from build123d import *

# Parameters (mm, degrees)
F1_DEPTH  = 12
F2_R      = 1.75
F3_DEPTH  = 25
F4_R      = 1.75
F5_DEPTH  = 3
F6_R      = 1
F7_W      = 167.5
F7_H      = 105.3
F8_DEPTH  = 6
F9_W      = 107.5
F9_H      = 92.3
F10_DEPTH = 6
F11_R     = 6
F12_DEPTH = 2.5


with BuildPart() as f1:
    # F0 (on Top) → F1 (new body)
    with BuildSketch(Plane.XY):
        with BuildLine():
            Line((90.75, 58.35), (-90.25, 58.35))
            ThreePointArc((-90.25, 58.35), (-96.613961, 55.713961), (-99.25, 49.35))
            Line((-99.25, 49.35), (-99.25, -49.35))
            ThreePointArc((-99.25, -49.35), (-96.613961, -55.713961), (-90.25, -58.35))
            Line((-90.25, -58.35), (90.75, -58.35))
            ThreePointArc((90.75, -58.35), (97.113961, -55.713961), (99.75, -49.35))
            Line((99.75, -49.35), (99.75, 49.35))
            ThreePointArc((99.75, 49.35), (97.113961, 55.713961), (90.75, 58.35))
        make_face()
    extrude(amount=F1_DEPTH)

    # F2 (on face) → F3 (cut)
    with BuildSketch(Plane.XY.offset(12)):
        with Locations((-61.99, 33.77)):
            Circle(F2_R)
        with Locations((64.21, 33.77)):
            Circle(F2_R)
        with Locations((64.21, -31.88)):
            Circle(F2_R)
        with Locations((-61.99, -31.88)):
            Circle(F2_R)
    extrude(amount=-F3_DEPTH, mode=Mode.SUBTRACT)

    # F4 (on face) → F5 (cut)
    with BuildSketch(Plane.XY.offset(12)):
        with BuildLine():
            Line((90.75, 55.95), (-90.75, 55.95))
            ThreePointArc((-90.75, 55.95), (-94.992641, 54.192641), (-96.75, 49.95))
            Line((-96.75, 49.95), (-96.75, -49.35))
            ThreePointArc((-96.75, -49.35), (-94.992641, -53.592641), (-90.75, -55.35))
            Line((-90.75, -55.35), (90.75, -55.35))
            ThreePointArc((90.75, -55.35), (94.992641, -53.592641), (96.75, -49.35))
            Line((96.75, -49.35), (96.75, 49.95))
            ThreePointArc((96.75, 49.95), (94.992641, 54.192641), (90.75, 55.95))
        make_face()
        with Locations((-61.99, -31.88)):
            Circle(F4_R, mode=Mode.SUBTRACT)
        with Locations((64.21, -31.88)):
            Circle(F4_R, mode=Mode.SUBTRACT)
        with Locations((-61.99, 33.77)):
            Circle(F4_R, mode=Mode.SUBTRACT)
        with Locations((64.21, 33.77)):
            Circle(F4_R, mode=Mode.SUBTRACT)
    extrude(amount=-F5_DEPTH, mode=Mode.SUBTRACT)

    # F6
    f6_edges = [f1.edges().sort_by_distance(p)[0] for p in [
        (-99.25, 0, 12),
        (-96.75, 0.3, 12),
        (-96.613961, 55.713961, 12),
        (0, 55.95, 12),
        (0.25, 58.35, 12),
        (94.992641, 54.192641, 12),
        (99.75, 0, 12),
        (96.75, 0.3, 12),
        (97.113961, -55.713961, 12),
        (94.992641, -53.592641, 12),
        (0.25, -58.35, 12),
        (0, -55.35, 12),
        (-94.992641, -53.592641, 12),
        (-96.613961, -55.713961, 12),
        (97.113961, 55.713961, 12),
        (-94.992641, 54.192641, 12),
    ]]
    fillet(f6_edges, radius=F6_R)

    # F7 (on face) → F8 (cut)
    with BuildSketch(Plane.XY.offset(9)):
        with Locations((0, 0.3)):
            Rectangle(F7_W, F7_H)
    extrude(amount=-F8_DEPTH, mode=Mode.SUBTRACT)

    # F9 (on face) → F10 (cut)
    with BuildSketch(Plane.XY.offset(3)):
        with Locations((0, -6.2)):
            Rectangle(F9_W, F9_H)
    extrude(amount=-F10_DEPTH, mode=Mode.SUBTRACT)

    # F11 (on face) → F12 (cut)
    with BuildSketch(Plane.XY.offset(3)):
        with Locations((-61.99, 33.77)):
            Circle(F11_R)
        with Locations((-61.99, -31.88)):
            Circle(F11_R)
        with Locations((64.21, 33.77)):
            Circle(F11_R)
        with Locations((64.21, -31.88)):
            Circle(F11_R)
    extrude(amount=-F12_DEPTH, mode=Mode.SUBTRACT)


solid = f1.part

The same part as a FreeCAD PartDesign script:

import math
import FreeCAD as App
import Part
import Sketcher
from FreeCAD import Vector
Q = App.Units.Quantity


def edges_at(feature, points):
    """Names of the edges that pass closest to the given points."""
    edges = feature.Shape.Edges
    near = lambda p: min(range(len(edges)), key=lambda i: edges[i].distToShape(Part.Vertex(*p))[0])
    return sorted({f"Edge{near(p) + 1}" for p in points})


def add_polygon(sketch, points):
    """Adds a closed chain of lines whose ends are joined by coincident constraints."""
    first, n = sketch.GeometryCount, len(points)
    for a, b in zip(points, points[1:] + points[:1]):
        sketch.addGeometry(Part.LineSegment(App.Vector(*a, 0), App.Vector(*b, 0)), False)
    for i in range(n):
        sketch.addConstraint(Sketcher.Constraint("Coincident", first + i, 2, first + (i + 1) % n, 1))

doc = App.newDocument("Part")
body = doc.addObject("PartDesign::Body", "Body")

# Sketch on XY plane
sketch1 = doc.addObject("Sketcher::SketchObject", "Sketch")
body.addObject(sketch1)
sketch1.AttachmentSupport = (doc.XY_Plane, [""])
sketch1.MapMode = "FlatFace"
sketch1.addGeometry([
    Part.LineSegment(Vector(90.75, 58.35, 0), Vector(-90.25, 58.35, 0)),  # 0
    Part.ArcOfCircle(Part.Circle(Vector(-90.25, 49.35, 0), Vector(0, 0, 1), 9), math.radians(90.000001), math.radians(179.999999)),  # 1
    Part.LineSegment(Vector(-99.25, 49.35, 0), Vector(-99.25, -49.35, 0)),  # 2
    Part.ArcOfCircle(Part.Circle(Vector(-90.25, -49.35, 0), Vector(0, 0, 1), 9), math.radians(-179.999999), math.radians(-90.000001)),  # 3
    Part.LineSegment(Vector(-90.25, -58.35, 0), Vector(90.75, -58.35, 0)),  # 4
    Part.ArcOfCircle(Part.Circle(Vector(90.75, -49.35, 0), Vector(0, 0, 1), 9), math.radians(-89.999999), math.radians(-0.000001)),  # 5
    Part.LineSegment(Vector(99.75, -49.35, 0), Vector(99.75, 49.35, 0)),  # 6
    Part.ArcOfCircle(Part.Circle(Vector(90.75, 49.35, 0), Vector(0, 0, 1), 9), math.radians(0.000001), math.radians(89.999999)),  # 7
], False)
sketch1.addConstraint([
    Sketcher.Constraint("Tangent", 0, 2, 1, 1),
    Sketcher.Constraint("Tangent", 1, 2, 2, 1),
    Sketcher.Constraint("Tangent", 2, 2, 3, 1),
    Sketcher.Constraint("Tangent", 3, 2, 4, 1),
    Sketcher.Constraint("Tangent", 4, 2, 5, 1),
    Sketcher.Constraint("Tangent", 5, 2, 6, 1),
    Sketcher.Constraint("Tangent", 6, 2, 7, 1),
    Sketcher.Constraint("Tangent", 7, 2, 0, 1),
    Sketcher.Constraint("Horizontal", 0),
    Sketcher.Constraint("Vertical", 2),
    Sketcher.Constraint("Horizontal", 4),
    Sketcher.Constraint("Vertical", 6),
    Sketcher.Constraint("Equal", 1, 3),
    Sketcher.Constraint("Equal", 3, 5),
    Sketcher.Constraint("Equal", 5, 7),
    Sketcher.Constraint("Radius", 1, Q("9 mm")),
    Sketcher.Constraint("DistanceX", 0, 2, 0, 1, Q("181 mm")),
    Sketcher.Constraint("DistanceY", 2, 2, 2, 1, Q("98.7 mm")),
    Sketcher.Constraint("DistanceX", 1, 3, -1, 1, Q("90.25 mm")),
    Sketcher.Constraint("DistanceY", -1, 1, 1, 3, Q("49.35 mm")),
])
pad1 = doc.addObject("PartDesign::Pad", "Pad")
body.addObject(pad1)
pad1.Profile = sketch1
pad1.Length = 12

# Sketch on XY plane
sketch2 = doc.addObject("Sketcher::SketchObject", "Sketch001")
body.addObject(sketch2)
sketch2.AttachmentSupport = (doc.XY_Plane, [""])
sketch2.MapMode = "FlatFace"
sketch2.AttachmentOffset = App.Placement(Vector(0, 0, 12), App.Rotation())
sketch2.addGeometry([
    Part.Circle(Vector(-61.99, 33.77, 0), Vector(0, 0, 1), 1.75),
    Part.Circle(Vector(64.21, 33.77, 0), Vector(0, 0, 1), 1.75),
    Part.Circle(Vector(64.21, -31.88, 0), Vector(0, 0, 1), 1.75),
    Part.Circle(Vector(-61.99, -31.88, 0), Vector(0, 0, 1), 1.75),
], False)
sketch2.addConstraint([
    Sketcher.Constraint("Equal", 0, 1),
    Sketcher.Constraint("Equal", 1, 2),
    Sketcher.Constraint("Equal", 2, 3),
    Sketcher.Constraint("Horizontal", 0, 3, 1, 3),
    Sketcher.Constraint("Horizontal", 2, 3, 3, 3),
    Sketcher.Constraint("Vertical", 1, 3, 2, 3),
    Sketcher.Constraint("Vertical", 0, 3, 3, 3),
    Sketcher.Constraint("Diameter", 0, Q("3.5 mm")),
    Sketcher.Constraint("DistanceX", 0, 3, 1, 3, Q("126.2 mm")),
    Sketcher.Constraint("DistanceX", 0, 3, -1, 1, Q("61.99 mm")),
    Sketcher.Constraint("DistanceY", -1, 1, 0, 3, Q("33.77 mm")),
    Sketcher.Constraint("DistanceY", 2, 3, -1, 1, Q("31.88 mm")),
])
pocket1 = doc.addObject("PartDesign::Pocket", "Pocket")
body.addObject(pocket1)
pocket1.Profile = sketch2
pocket1.Length = 25

# Sketch on XY plane
sketch3 = doc.addObject("Sketcher::SketchObject", "Sketch002")
body.addObject(sketch3)
sketch3.AttachmentSupport = (doc.XY_Plane, [""])
sketch3.MapMode = "FlatFace"
sketch3.AttachmentOffset = App.Placement(Vector(0, 0, 12), App.Rotation())
sketch3.addGeometry([
    Part.LineSegment(Vector(90.75, 55.95, 0), Vector(-90.75, 55.95, 0)),  # 0
    Part.ArcOfCircle(Part.Circle(Vector(-90.750001, 49.950001, 0), Vector(0, 0, 1), 5.999999), math.radians(89.99999), math.radians(180.00001)),  # 1
    Part.LineSegment(Vector(-96.75, 49.95, 0), Vector(-96.75, -49.35, 0)),  # 2
    Part.ArcOfCircle(Part.Circle(Vector(-90.750001, -49.350001, 0), Vector(0, 0, 1), 5.999999), math.radians(179.99999), math.radians(270.00001)),  # 3
    Part.LineSegment(Vector(-90.75, -55.35, 0), Vector(90.75, -55.35, 0)),  # 4
    Part.ArcOfCircle(Part.Circle(Vector(90.750001, -49.350001, 0), Vector(0, 0, 1), 5.999999), math.radians(-90.00001), math.radians(0.00001)),  # 5
    Part.LineSegment(Vector(96.75, -49.35, 0), Vector(96.75, 49.95, 0)),  # 6
    Part.ArcOfCircle(Part.Circle(Vector(90.750001, 49.950001, 0), Vector(0, 0, 1), 5.999999), math.radians(-0.00001), math.radians(90.00001)),  # 7
    Part.Circle(Vector(-61.99, -31.88, 0), Vector(0, 0, 1), 1.75),  # 8
    Part.Circle(Vector(64.21, -31.88, 0), Vector(0, 0, 1), 1.75),  # 9
    Part.Circle(Vector(-61.99, 33.77, 0), Vector(0, 0, 1), 1.75),  # 10
    Part.Circle(Vector(64.21, 33.77, 0), Vector(0, 0, 1), 1.75),  # 11
], False)
sketch3.addConstraint([
    Sketcher.Constraint("Tangent", 0, 2, 1, 1),
    Sketcher.Constraint("Tangent", 1, 2, 2, 1),
    Sketcher.Constraint("Tangent", 2, 2, 3, 1),
    Sketcher.Constraint("Tangent", 3, 2, 4, 1),
    Sketcher.Constraint("Tangent", 4, 2, 5, 1),
    Sketcher.Constraint("Tangent", 5, 2, 6, 1),
    Sketcher.Constraint("Tangent", 6, 2, 7, 1),
    Sketcher.Constraint("Tangent", 7, 2, 0, 1),
    Sketcher.Constraint("Horizontal", 0),
    Sketcher.Constraint("Vertical", 2),
    Sketcher.Constraint("Horizontal", 4),
    Sketcher.Constraint("Vertical", 6),
    Sketcher.Constraint("Equal", 1, 3),
    Sketcher.Constraint("Equal", 3, 5),
    Sketcher.Constraint("Equal", 5, 7),
    Sketcher.Constraint("Equal", 8, 9),
    Sketcher.Constraint("Equal", 9, 10),
    Sketcher.Constraint("Equal", 10, 11),
    Sketcher.Constraint("Horizontal", 8, 3, 9, 3),
    Sketcher.Constraint("Horizontal", 10, 3, 11, 3),
    Sketcher.Constraint("Vertical", 8, 3, 10, 3),
    Sketcher.Constraint("Vertical", 9, 3, 11, 3),
    Sketcher.Constraint("Radius", 1, Q("5.999999 mm")),
    Sketcher.Constraint("Diameter", 8, Q("3.5 mm")),
    Sketcher.Constraint("DistanceX", 0, 2, 0, 1, Q("181.5 mm")),
    Sketcher.Constraint("DistanceY", 2, 2, 2, 1, Q("99.3 mm")),
    Sketcher.Constraint("DistanceX", 8, 3, 9, 3, Q("126.2 mm")),
    Sketcher.Constraint("DistanceX", 1, 3, -1, 1, Q("90.750001 mm")),
    Sketcher.Constraint("DistanceY", -1, 1, 1, 3, Q("49.950001 mm")),
    Sketcher.Constraint("DistanceX", 8, 3, -1, 1, Q("61.99 mm")),
    Sketcher.Constraint("DistanceY", 8, 3, -1, 1, Q("31.88 mm")),
    Sketcher.Constraint("DistanceY", -1, 1, 10, 3, Q("33.77 mm")),
])
pocket2 = doc.addObject("PartDesign::Pocket", "Pocket001")
body.addObject(pocket2)
pocket2.Profile = sketch3
pocket2.Length = 3
doc.recompute()

fillet = doc.addObject("PartDesign::Fillet", "Fillet")
body.addObject(fillet)
fillet.Base = (pocket2, edges_at(pocket2, [
    (-99.25, 0, 12),
    (-96.75, 0.3, 12),
    (-96.614, 55.714, 12),
    (0, 55.95, 12),
    (0.25, 58.35, 12),
    (94.993, 54.193, 12),
    (99.75, 0, 12),
    (96.75, 0.3, 12),
    (97.114, -55.714, 12),
    (94.993, -53.593, 12),
    (0.25, -58.35, 12),
    (0, -55.35, 12),
    (-94.993, -53.593, 12),
    (-96.614, -55.714, 12),
    (97.114, 55.714, 12),
    (-94.993, 54.193, 12),
]))
fillet.Radius = 1

# Sketch on XY plane
sketch4 = doc.addObject("Sketcher::SketchObject", "Sketch003")
body.addObject(sketch4)
sketch4.AttachmentSupport = (doc.XY_Plane, [""])
sketch4.MapMode = "FlatFace"
sketch4.AttachmentOffset = App.Placement(Vector(0, 0, 9), App.Rotation())
add_polygon(sketch4, [(-83.75, 52.95), (-83.75, -52.35), (83.75, -52.35), (83.75, 52.95)])  # lines 0-3
sketch4.addConstraint([
    Sketcher.Constraint("Vertical", 0),
    Sketcher.Constraint("Horizontal", 1),
    Sketcher.Constraint("Vertical", 2),
    Sketcher.Constraint("Horizontal", 3),
    Sketcher.Constraint("DistanceX", 1, 1, 1, 2, Q("167.5 mm")),
    Sketcher.Constraint("DistanceY", 0, 2, 0, 1, Q("105.3 mm")),
    Sketcher.Constraint("DistanceX", 0, 2, -1, 1, Q("83.75 mm")),
    Sketcher.Constraint("DistanceY", 0, 2, -1, 1, Q("52.35 mm")),
])
pocket3 = doc.addObject("PartDesign::Pocket", "Pocket002")
body.addObject(pocket3)
pocket3.Profile = sketch4
pocket3.Length = 6

# Sketch on XY plane
sketch5 = doc.addObject("Sketcher::SketchObject", "Sketch004")
body.addObject(sketch5)
sketch5.AttachmentSupport = (doc.XY_Plane, [""])
sketch5.MapMode = "FlatFace"
sketch5.AttachmentOffset = App.Placement(Vector(0, 0, 3), App.Rotation())
add_polygon(sketch5, [(-53.75, 39.95), (-53.75, -52.35), (53.75, -52.35), (53.75, 39.95)])  # lines 0-3
sketch5.addConstraint([
    Sketcher.Constraint("Vertical", 0),
    Sketcher.Constraint("Horizontal", 1),
    Sketcher.Constraint("Vertical", 2),
    Sketcher.Constraint("Horizontal", 3),
    Sketcher.Constraint("DistanceX", 1, 1, 1, 2, Q("107.5 mm")),
    Sketcher.Constraint("DistanceY", 0, 2, 0, 1, Q("92.3 mm")),
    Sketcher.Constraint("DistanceX", 0, 2, -1, 1, Q("53.75 mm")),
    Sketcher.Constraint("DistanceY", 0, 2, -1, 1, Q("52.35 mm")),
])
pocket4 = doc.addObject("PartDesign::Pocket", "Pocket003")
body.addObject(pocket4)
pocket4.Profile = sketch5
pocket4.Length = 6

# Sketch on XY plane
sketch6 = doc.addObject("Sketcher::SketchObject", "Sketch005")
body.addObject(sketch6)
sketch6.AttachmentSupport = (doc.XY_Plane, [""])
sketch6.MapMode = "FlatFace"
sketch6.AttachmentOffset = App.Placement(Vector(0, 0, 3), App.Rotation())
sketch6.addGeometry([
    Part.Circle(Vector(-61.99, 33.77, 0), Vector(0, 0, 1), 6),
    Part.Circle(Vector(-61.99, -31.88, 0), Vector(0, 0, 1), 6),
    Part.Circle(Vector(64.21, 33.77, 0), Vector(0, 0, 1), 6),
    Part.Circle(Vector(64.21, -31.88, 0), Vector(0, 0, 1), 6),
], False)
sketch6.addConstraint([
    Sketcher.Constraint("Equal", 0, 1),
    Sketcher.Constraint("Equal", 1, 2),
    Sketcher.Constraint("Equal", 2, 3),
    Sketcher.Constraint("Horizontal", 0, 3, 2, 3),
    Sketcher.Constraint("Horizontal", 1, 3, 3, 3),
    Sketcher.Constraint("Vertical", 0, 3, 1, 3),
    Sketcher.Constraint("Vertical", 2, 3, 3, 3),
    Sketcher.Constraint("Diameter", 0, Q("12 mm")),
    Sketcher.Constraint("DistanceX", 0, 3, 2, 3, Q("126.2 mm")),
    Sketcher.Constraint("DistanceX", 0, 3, -1, 1, Q("61.99 mm")),
    Sketcher.Constraint("DistanceY", -1, 1, 0, 3, Q("33.77 mm")),
    Sketcher.Constraint("DistanceY", 1, 3, -1, 1, Q("31.88 mm")),
])
pocket5 = doc.addObject("PartDesign::Pocket", "Pocket004")
body.addObject(pocket5)
pocket5.Profile = sketch6
pocket5.Length = 2.5

doc.recompute()
